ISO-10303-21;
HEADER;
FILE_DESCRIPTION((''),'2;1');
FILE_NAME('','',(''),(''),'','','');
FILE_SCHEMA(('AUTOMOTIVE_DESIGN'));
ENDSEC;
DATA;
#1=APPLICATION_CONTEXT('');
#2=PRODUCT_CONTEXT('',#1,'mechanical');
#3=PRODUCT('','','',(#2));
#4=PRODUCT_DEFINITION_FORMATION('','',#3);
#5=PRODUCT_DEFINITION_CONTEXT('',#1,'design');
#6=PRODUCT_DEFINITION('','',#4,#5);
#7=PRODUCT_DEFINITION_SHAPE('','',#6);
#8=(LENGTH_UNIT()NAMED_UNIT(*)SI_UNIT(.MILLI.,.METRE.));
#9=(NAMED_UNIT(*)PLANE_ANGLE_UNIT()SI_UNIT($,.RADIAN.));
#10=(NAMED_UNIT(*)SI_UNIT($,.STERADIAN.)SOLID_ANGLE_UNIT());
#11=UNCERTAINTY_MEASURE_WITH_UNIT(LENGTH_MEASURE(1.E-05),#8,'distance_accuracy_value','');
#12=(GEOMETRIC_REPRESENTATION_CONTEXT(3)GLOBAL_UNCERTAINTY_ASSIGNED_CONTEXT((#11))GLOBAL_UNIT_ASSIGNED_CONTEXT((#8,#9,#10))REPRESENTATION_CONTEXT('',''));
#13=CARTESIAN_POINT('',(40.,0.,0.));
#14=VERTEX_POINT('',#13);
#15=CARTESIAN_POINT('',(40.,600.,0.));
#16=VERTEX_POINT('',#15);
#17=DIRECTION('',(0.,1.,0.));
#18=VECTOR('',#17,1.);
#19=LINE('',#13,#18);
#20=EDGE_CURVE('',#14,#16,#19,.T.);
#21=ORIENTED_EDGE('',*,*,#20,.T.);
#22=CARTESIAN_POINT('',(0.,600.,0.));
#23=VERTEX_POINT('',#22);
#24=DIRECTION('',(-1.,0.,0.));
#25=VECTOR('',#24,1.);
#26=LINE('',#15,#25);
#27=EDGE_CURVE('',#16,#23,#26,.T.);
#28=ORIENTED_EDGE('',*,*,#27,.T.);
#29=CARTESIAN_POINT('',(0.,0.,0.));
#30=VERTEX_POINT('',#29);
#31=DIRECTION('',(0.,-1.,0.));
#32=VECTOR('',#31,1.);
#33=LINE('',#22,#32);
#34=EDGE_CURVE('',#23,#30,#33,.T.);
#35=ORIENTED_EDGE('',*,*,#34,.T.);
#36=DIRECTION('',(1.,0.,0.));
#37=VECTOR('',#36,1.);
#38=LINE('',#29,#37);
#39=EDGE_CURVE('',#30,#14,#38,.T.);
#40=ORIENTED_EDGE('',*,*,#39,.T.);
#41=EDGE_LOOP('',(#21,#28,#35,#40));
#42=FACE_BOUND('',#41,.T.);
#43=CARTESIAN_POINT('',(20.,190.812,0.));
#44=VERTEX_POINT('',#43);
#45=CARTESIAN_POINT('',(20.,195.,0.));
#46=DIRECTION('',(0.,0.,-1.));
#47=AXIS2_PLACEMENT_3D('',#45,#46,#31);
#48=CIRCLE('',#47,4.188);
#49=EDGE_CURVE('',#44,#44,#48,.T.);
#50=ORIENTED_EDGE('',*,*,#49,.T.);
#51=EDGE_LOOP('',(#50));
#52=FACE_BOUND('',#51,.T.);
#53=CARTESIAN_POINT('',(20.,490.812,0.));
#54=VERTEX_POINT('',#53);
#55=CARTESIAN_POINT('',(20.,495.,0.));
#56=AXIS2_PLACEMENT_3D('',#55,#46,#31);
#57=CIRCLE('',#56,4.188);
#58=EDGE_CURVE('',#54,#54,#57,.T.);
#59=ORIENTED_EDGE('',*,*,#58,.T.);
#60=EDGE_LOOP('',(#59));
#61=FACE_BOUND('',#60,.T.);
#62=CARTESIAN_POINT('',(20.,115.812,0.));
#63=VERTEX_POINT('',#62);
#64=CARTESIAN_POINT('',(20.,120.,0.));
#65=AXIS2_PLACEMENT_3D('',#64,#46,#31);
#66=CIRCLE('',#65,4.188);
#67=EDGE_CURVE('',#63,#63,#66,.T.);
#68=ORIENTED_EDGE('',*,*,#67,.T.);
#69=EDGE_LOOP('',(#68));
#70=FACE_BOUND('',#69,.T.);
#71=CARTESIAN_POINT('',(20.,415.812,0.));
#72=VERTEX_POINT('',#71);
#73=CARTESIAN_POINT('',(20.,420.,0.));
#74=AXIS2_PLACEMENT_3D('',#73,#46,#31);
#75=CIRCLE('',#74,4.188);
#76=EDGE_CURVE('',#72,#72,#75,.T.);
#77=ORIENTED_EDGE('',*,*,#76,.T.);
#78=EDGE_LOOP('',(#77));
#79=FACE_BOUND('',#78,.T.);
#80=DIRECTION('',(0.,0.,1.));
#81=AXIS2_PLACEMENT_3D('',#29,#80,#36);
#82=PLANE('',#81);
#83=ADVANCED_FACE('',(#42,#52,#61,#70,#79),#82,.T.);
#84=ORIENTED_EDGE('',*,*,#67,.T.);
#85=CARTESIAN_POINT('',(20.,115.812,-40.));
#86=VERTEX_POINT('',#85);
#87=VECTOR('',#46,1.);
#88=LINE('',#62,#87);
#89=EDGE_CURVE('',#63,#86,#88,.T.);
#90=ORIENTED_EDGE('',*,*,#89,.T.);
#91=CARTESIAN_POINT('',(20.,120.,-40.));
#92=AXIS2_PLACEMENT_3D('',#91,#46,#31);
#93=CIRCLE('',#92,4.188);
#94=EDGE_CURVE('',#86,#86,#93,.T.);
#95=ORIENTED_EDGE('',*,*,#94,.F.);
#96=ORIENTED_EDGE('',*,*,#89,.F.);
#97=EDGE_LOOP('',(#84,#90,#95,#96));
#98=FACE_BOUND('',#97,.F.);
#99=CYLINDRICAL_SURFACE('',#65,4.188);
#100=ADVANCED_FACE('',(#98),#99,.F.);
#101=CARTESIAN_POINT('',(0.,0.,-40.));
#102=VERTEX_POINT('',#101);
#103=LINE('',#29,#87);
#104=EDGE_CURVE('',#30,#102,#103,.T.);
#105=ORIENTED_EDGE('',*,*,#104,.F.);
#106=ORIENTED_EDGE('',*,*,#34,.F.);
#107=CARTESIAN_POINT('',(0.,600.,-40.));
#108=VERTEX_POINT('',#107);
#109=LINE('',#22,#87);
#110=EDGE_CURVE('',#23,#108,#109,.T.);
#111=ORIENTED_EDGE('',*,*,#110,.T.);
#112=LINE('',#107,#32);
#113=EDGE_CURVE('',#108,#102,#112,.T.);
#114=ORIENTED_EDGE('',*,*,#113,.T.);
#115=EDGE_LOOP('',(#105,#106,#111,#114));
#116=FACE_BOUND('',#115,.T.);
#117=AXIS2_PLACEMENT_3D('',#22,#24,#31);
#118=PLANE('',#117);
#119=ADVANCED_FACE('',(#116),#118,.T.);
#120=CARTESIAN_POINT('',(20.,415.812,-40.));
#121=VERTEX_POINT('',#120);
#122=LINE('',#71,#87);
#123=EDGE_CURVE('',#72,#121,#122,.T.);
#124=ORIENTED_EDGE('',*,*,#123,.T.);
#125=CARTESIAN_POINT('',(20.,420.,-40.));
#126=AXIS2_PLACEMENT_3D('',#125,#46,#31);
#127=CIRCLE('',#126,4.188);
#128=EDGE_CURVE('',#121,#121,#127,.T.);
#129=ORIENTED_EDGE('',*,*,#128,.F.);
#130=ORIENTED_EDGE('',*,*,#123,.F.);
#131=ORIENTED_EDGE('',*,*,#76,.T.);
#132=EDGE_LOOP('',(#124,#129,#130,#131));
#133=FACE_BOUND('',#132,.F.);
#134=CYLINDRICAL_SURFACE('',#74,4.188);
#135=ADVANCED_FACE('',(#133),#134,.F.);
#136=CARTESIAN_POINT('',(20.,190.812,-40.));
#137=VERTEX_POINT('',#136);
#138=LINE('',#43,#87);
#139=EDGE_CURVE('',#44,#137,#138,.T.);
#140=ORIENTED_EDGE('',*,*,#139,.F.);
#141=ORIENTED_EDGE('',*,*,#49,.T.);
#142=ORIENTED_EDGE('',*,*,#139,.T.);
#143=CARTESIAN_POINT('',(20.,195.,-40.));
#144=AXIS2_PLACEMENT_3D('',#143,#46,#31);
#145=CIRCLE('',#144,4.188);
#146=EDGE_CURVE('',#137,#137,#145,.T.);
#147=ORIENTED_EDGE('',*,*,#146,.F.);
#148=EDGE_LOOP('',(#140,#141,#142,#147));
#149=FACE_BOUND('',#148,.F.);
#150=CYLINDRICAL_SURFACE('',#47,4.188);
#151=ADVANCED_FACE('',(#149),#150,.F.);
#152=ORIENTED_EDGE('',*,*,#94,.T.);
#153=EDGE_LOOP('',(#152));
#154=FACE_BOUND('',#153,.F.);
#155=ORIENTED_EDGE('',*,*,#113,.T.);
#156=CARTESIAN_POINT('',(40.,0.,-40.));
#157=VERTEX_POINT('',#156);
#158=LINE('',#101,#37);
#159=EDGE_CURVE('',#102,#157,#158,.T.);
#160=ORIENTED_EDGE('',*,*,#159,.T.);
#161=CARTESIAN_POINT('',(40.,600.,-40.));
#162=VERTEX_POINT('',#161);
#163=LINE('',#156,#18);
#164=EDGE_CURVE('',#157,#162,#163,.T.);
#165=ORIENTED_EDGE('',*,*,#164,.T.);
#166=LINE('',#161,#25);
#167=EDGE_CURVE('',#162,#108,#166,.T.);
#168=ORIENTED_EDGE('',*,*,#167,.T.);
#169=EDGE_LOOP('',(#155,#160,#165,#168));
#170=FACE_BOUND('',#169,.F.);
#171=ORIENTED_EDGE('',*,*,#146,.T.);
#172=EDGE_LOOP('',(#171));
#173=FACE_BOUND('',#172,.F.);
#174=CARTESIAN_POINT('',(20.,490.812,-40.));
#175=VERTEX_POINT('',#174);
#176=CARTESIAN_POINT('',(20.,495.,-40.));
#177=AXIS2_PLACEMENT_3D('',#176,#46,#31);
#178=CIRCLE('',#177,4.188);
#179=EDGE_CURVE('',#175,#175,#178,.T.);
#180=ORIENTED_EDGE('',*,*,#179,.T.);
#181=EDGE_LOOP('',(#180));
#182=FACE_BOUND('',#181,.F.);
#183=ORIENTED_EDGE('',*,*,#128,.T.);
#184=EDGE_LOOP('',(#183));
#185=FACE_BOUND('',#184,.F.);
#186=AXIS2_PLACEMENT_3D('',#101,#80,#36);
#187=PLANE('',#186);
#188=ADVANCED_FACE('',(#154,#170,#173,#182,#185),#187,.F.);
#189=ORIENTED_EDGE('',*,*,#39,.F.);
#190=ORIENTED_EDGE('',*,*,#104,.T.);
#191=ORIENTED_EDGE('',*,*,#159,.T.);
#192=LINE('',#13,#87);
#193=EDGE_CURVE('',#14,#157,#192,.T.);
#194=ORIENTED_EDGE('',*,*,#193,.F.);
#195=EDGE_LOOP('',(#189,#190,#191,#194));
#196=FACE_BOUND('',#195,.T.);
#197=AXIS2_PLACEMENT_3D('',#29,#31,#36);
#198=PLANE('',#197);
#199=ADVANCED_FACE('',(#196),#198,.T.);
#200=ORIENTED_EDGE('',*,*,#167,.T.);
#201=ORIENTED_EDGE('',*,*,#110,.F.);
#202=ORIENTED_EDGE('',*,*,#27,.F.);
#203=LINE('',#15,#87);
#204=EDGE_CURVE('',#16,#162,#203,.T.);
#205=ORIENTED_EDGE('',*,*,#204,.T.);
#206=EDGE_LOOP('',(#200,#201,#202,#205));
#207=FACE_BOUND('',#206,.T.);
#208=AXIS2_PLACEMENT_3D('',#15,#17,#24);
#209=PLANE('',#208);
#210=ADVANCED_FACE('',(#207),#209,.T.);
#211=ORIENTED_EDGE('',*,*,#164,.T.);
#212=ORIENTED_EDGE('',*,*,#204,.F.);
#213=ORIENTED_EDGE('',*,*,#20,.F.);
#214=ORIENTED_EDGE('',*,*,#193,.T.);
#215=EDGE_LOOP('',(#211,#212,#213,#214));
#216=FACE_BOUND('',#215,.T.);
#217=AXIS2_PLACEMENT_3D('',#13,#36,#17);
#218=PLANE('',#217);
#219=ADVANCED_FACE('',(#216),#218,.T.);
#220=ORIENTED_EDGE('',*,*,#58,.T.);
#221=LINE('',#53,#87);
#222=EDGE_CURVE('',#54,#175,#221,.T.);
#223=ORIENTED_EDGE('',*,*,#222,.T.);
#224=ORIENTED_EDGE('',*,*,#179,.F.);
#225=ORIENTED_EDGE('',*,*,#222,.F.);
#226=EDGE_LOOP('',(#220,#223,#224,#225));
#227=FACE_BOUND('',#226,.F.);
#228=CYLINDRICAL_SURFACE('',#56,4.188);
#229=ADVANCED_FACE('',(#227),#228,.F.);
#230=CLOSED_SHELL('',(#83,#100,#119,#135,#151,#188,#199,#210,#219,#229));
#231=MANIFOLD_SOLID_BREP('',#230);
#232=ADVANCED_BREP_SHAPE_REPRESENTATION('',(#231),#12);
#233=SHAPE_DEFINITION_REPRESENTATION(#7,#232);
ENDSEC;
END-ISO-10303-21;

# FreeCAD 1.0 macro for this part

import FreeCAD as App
import Part
import Sketcher

V = App.Vector

doc = App.newDocument("Part")
params = doc.addObject("Spreadsheet::Sheet", "Params")
for row, (alias, value) in enumerate([
    ("sketch1_width", "40 mm"),
    ("sketch1_height", "600 mm"),
    ("pad1_length", "40 mm"),
    ("hole_diameter", "8.376 mm"),
], start=1):
    params.set(f"A{row}", alias)
    params.set(f"B{row}", "=" + value)
    params.setAlias(f"B{row}", alias)

body = doc.addObject("PartDesign::Body", "Body")

# Sketch on XY plane
sketch1 = doc.addObject("Sketcher::SketchObject", "Sketch")
body.addObject(sketch1)
sketch1.AttachmentSupport = (doc.XY_Plane, [""])
sketch1.MapMode = "FlatFace"
sketch1.addGeometry([
    Part.LineSegment(V(0, 600, 0), V(0, 0, 0)),
    Part.LineSegment(V(0, 0, 0), V(40, 0, 0)),
    Part.LineSegment(V(40, 0, 0), V(40, 600, 0)),
    Part.LineSegment(V(40, 600, 0), V(0, 600, 0)),
], False)
sketch1.addConstraint([
    Sketcher.Constraint("Coincident", 0, 2, 1, 1),
    Sketcher.Constraint("Coincident", 1, 2, 2, 1),
    Sketcher.Constraint("Coincident", 2, 2, 3, 1),
    Sketcher.Constraint("Coincident", 3, 2, 0, 1),
    Sketcher.Constraint("Vertical", 0),
    Sketcher.Constraint("Horizontal", 1),
    Sketcher.Constraint("Vertical", 2),
    Sketcher.Constraint("Horizontal", 3),
    Sketcher.Constraint("Coincident", 0, 2, -1, 1),
    Sketcher.Constraint("DistanceX", 1, 1, 1, 2, 40.0),
    Sketcher.Constraint("DistanceY", 0, 2, 0, 1, 600.0),
])
sketch1.setExpression("Constraints[9]", "Params.sketch1_width")
sketch1.setExpression("Constraints[10]", "Params.sketch1_height")
pad1 = doc.addObject("PartDesign::Pad", "Pad")
body.addObject(pad1)
pad1.Profile = sketch1
pad1.setExpression("Length", "Params.pad1_length")
pad1.Reversed = True

# Sketch on XY plane
sketch2 = doc.addObject("Sketcher::SketchObject", "Sketch001")
body.addObject(sketch2)
sketch2.AttachmentSupport = (doc.XY_Plane, [""])
sketch2.MapMode = "FlatFace"
sketch2.addGeometry([
    Part.Circle(V(20, 495, 0), V(0, 0, 1), 4.188),
    Part.Circle(V(20, 420, 0), V(0, 0, 1), 4.188),
    Part.Circle(V(20, 195, 0), V(0, 0, 1), 4.188),
    Part.Circle(V(20, 120, 0), V(0, 0, 1), 4.188),
], False)
sketch2.addConstraint([
    Sketcher.Constraint("Equal", 0, 1),
    Sketcher.Constraint("Equal", 1, 2),
    Sketcher.Constraint("Equal", 2, 3),
    Sketcher.Constraint("Vertical", 0, 3, 1, 3),
    Sketcher.Constraint("Vertical", 1, 3, 2, 3),
    Sketcher.Constraint("Vertical", 2, 3, 3, 3),
    Sketcher.Constraint("Diameter", 0, 8.376),
    Sketcher.Constraint("DistanceX", -1, 1, 0, 3, 20.0),
    Sketcher.Constraint("DistanceY", -1, 1, 0, 3, 495.0),
    Sketcher.Constraint("DistanceY", -1, 1, 1, 3, 420.0),
    Sketcher.Constraint("DistanceY", -1, 1, 2, 3, 195.0),
    Sketcher.Constraint("DistanceY", -1, 1, 3, 3, 120.0),
])
doc.recompute()
hole = doc.addObject("PartDesign::Hole", "Hole")
body.addObject(hole)
hole.Profile = sketch2
hole.ThreadType = "None"
hole.setExpression("Diameter", "Params.hole_diameter")
hole.DepthType = "ThroughAll"

doc.recompute()
